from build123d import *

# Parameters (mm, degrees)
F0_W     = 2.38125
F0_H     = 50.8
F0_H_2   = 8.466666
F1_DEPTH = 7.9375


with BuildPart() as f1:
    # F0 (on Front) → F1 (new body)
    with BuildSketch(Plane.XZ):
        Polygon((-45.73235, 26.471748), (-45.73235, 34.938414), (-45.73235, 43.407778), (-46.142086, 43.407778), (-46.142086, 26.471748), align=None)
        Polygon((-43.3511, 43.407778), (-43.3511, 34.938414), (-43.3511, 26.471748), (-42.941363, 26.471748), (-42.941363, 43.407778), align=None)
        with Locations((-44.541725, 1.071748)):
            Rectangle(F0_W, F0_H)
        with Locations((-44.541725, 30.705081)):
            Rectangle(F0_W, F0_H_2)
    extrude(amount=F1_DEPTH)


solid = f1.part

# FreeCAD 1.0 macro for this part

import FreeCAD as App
import Part
import Sketcher
Q = App.Units.Quantity

doc = App.newDocument("Part")
body = doc.addObject("PartDesign::Body", "Body")

sketch1 = body.newObject("Sketcher::SketchObject", "Sketch")
sketch1.AttachmentSupport = (doc.getObject("XZ_Plane"), [""])
sketch1.MapMode = "FlatFace"
sketch1.addGeometry([
    Part.LineSegment(App.Vector(-45.73, 34.94, 0), App.Vector(-45.73, 43.41, 0)),
    Part.LineSegment(App.Vector(-45.73, 43.41, 0), App.Vector(-46.14, 43.41, 0)),
    Part.LineSegment(App.Vector(-46.14, 43.41, 0), App.Vector(-46.14, 26.47, 0)),
    Part.LineSegment(App.Vector(-46.14, 26.47, 0), App.Vector(-45.73, 26.47, 0)),
    Part.LineSegment(App.Vector(-45.73, 26.47, 0), App.Vector(-45.73, -24.33, 0)),
    Part.LineSegment(App.Vector(-45.73, -24.33, 0), App.Vector(-43.35, -24.33, 0)),
    Part.LineSegment(App.Vector(-43.35, -24.33, 0), App.Vector(-43.35, 26.47, 0)),
    Part.LineSegment(App.Vector(-43.35, 26.47, 0), App.Vector(-42.94, 26.47, 0)),
    Part.LineSegment(App.Vector(-42.94, 26.47, 0), App.Vector(-42.94, 43.41, 0)),
    Part.LineSegment(App.Vector(-42.94, 43.41, 0), App.Vector(-43.35, 43.41, 0)),
    Part.LineSegment(App.Vector(-43.35, 43.41, 0), App.Vector(-43.35, 34.94, 0)),
    Part.LineSegment(App.Vector(-43.35, 34.94, 0), App.Vector(-45.73, 34.94, 0)),
], False)
sketch1.addConstraint([
    Sketcher.Constraint("Coincident", 0, 2, 1, 1),
    Sketcher.Constraint("Coincident", 1, 2, 2, 1),
    Sketcher.Constraint("Coincident", 2, 2, 3, 1),
    Sketcher.Constraint("Coincident", 3, 2, 4, 1),
    Sketcher.Constraint("Coincident", 4, 2, 5, 1),
    Sketcher.Constraint("Coincident", 5, 2, 6, 1),
    Sketcher.Constraint("Coincident", 6, 2, 7, 1),
    Sketcher.Constraint("Coincident", 7, 2, 8, 1),
    Sketcher.Constraint("Coincident", 8, 2, 9, 1),
    Sketcher.Constraint("Coincident", 9, 2, 10, 1),
    Sketcher.Constraint("Coincident", 10, 2, 11, 1),
    Sketcher.Constraint("Coincident", 11, 2, 0, 1),
    Sketcher.Constraint("Vertical", 0),
    Sketcher.Constraint("Horizontal", 1),
    Sketcher.Constraint("Vertical", 2),
    Sketcher.Constraint("Horizontal", 3),
    Sketcher.Constraint("Vertical", 4),
    Sketcher.Constraint("Horizontal", 5),
    Sketcher.Constraint("Vertical", 6),
    Sketcher.Constraint("Horizontal", 7),
    Sketcher.Constraint("Vertical", 8),
    Sketcher.Constraint("Horizontal", 9),
    Sketcher.Constraint("Vertical", 10),
    Sketcher.Constraint("Horizontal", 11),
    Sketcher.Constraint("Horizontal", 3, 2, 6, 2),
    Sketcher.Constraint("Horizontal", 1, 2, 8, 2),
    Sketcher.Constraint("Vertical", 0, 2, 3, 2),
    Sketcher.Constraint("Vertical", 6, 2, 9, 2),
    Sketcher.Constraint("Equal", 3, 7),
    Sketcher.Constraint("DistanceY", 4, 2, 4, 1, Q("2 in")),
    Sketcher.Constraint("DistanceX", 5, 1, 5, 2, Q("0.09375 in")),
    Sketcher.Constraint("DistanceY", 2, 2, 2, 1, 16.93603),
    Sketcher.Constraint("DistanceX", 5, 2, -1, 1, 43.3511),
    Sketcher.Constraint("DistanceX", 1, 2, 1, 1, 0.409736),
    Sketcher.Constraint("DistanceY", 0, 1, 0, 2, 8.469364),
    Sketcher.Constraint("DistanceY", -1, 1, 2, 2, 26.471748),
])
pad1 = body.newObject("PartDesign::Pad", "Pad")
pad1.Profile = sketch1
pad1.Length = Q("0.3125 in")

doc.recompute()
